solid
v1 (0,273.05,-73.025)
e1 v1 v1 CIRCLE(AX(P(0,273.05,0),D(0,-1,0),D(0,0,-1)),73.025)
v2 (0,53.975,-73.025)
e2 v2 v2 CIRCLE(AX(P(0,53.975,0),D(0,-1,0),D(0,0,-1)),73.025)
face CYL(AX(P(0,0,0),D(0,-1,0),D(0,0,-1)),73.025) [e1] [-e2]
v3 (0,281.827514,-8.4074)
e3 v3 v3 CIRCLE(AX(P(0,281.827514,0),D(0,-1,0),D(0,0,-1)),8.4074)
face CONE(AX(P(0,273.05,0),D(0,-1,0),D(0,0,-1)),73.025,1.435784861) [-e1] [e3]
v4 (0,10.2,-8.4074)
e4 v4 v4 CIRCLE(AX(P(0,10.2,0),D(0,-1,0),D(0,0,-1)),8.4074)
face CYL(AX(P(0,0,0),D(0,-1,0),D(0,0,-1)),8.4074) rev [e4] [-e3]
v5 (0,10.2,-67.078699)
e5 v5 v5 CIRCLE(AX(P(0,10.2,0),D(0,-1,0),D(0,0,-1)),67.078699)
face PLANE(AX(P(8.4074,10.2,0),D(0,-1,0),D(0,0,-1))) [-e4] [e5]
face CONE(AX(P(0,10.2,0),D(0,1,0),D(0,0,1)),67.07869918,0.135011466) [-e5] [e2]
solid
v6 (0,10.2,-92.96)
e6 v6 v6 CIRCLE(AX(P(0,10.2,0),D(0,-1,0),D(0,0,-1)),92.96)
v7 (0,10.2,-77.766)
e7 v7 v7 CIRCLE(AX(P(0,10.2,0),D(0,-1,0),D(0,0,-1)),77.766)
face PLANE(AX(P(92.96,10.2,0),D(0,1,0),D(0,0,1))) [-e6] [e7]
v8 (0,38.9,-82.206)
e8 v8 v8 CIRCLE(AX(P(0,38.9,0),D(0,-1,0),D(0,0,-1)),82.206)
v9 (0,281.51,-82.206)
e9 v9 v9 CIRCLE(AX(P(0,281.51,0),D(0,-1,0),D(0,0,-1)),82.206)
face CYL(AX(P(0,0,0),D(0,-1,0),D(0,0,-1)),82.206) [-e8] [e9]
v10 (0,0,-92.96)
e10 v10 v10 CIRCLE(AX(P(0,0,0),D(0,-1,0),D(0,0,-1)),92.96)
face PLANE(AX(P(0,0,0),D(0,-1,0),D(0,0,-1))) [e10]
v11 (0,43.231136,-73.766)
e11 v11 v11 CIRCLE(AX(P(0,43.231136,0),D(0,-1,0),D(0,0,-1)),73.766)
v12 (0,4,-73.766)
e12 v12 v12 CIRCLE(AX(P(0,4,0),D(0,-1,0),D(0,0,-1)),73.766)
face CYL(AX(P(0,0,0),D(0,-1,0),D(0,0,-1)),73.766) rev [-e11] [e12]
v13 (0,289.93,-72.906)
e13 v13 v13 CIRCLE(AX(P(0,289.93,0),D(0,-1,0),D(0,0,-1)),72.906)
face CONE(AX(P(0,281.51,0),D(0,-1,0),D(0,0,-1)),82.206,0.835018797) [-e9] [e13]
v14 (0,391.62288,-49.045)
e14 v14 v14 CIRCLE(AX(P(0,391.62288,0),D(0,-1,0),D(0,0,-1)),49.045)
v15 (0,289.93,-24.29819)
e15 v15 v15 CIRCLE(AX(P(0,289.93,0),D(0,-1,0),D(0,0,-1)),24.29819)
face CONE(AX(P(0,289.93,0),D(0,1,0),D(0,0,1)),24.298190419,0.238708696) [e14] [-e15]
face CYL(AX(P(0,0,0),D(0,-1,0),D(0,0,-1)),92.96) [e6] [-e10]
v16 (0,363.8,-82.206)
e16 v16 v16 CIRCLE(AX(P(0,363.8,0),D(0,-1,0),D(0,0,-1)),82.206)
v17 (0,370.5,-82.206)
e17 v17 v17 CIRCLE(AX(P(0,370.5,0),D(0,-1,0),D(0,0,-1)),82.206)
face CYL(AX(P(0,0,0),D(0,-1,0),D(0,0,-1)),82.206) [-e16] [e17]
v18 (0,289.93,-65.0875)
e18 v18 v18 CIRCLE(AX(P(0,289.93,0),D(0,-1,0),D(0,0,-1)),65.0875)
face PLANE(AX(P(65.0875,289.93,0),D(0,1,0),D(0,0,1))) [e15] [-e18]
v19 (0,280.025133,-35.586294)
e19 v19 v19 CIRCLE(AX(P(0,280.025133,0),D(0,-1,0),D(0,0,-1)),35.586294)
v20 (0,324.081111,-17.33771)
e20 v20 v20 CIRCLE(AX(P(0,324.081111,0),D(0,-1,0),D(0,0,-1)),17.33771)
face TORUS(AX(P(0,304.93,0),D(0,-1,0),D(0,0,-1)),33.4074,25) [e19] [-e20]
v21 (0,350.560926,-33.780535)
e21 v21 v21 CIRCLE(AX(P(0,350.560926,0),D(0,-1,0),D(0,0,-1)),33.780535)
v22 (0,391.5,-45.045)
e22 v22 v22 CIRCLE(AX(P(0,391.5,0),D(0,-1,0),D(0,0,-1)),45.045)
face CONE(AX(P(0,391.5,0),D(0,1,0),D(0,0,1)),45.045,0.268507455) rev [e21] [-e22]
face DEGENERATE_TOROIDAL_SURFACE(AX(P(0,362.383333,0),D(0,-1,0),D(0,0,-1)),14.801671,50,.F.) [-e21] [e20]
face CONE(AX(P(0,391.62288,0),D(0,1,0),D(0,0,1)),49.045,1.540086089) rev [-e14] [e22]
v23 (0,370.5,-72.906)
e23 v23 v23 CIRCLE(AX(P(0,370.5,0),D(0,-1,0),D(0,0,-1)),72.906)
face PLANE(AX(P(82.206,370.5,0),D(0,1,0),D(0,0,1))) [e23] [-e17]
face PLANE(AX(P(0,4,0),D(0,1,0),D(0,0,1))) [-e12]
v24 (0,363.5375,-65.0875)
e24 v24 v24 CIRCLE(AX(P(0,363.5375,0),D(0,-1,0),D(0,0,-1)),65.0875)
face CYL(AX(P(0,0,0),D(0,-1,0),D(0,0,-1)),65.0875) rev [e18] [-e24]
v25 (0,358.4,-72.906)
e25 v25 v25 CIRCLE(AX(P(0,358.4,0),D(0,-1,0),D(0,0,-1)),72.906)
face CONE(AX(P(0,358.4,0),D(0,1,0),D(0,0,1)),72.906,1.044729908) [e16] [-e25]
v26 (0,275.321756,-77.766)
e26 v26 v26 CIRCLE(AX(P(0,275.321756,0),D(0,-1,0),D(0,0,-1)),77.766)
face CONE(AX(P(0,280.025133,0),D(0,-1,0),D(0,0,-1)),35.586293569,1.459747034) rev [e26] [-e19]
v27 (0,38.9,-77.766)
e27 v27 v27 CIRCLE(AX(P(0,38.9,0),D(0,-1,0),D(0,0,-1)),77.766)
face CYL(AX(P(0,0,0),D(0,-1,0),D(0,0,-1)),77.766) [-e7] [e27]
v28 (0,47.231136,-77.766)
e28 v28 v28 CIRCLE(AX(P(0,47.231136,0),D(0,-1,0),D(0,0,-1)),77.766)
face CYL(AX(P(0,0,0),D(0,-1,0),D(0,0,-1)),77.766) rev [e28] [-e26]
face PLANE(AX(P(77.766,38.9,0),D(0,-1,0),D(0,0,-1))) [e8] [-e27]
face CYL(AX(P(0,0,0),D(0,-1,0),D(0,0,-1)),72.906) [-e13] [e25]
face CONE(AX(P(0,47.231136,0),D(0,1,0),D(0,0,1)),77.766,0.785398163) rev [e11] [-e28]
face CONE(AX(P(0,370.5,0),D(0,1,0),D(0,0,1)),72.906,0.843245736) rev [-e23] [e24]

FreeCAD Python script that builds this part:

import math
import FreeCAD as App
import Part
import Sketcher
from FreeCAD import Vector
Q = App.Units.Quantity


def add_polygon(sketch, points):
    """Adds a closed chain of lines whose ends are joined by coincident constraints."""
    first, n = sketch.GeometryCount, len(points)
    for a, b in zip(points, points[1:] + points[:1]):
        sketch.addGeometry(Part.LineSegment(App.Vector(*a, 0), App.Vector(*b, 0)), False)
    for i in range(n):
        sketch.addConstraint(Sketcher.Constraint("Coincident", first + i, 2, first + (i + 1) % n, 1))

doc = App.newDocument("Part")
body = doc.addObject("PartDesign::Body", "Body")
body.AllowCompound = True

# Sketch on XY plane
sketch1 = body.newObject("Sketcher::SketchObject", "Sketch")
sketch1.AttachmentSupport = (doc.getObject("XY_Plane"), [""])
sketch1.MapMode = "FlatFace"
sketch1.addGeometry(Part.LineSegment(Vector(0, 0, 0), Vector(93, 0, 0)), False)  # 0
sketch1.addGeometry(Part.LineSegment(Vector(93, 0, 0), Vector(93, 10.2, 0)), False)  # 1
sketch1.addGeometry(Part.LineSegment(Vector(93, 10.2, 0), Vector(77.8, 10.2, 0)), False)  # 2
sketch1.addGeometry(Part.LineSegment(Vector(77.8, 10.2, 0), Vector(77.8, 38.9, 0)), False)  # 3
sketch1.addGeometry(Part.LineSegment(Vector(77.8, 38.9, 0), Vector(82.2, 38.9, 0)), False)  # 4
sketch1.addGeometry(Part.LineSegment(Vector(82.2, 38.9, 0), Vector(82.2, 281.5, 0)), False)  # 5
sketch1.addGeometry(Part.LineSegment(Vector(82.2, 281.5, 0), Vector(72.9, 289.9, 0)), False)  # 6
sketch1.addGeometry(Part.LineSegment(Vector(72.9, 289.9, 0), Vector(72.9, 358.4, 0)), False)  # 7
sketch1.addGeometry(Part.LineSegment(Vector(72.9, 358.4, 0), Vector(82.2, 363.8, 0)), False)  # 8
sketch1.addGeometry(Part.LineSegment(Vector(82.2, 363.8, 0), Vector(82.2, 370.5, 0)), False)  # 9
sketch1.addGeometry(Part.LineSegment(Vector(82.2, 370.5, 0), Vector(72.9, 370.5, 0)), False)  # 10
sketch1.addGeometry(Part.LineSegment(Vector(72.9, 370.5, 0), Vector(65.1, 363.5, 0)), False)  # 11
sketch1.addGeometry(Part.LineSegment(Vector(65.1, 363.5, 0), Vector(65.1, 289.9, 0)), False)  # 12
sketch1.addGeometry(Part.LineSegment(Vector(65.1, 289.9, 0), Vector(24.3, 289.9, 0)), False)  # 13
sketch1.addGeometry(Part.LineSegment(Vector(24.3, 289.9, 0), Vector(49, 391.6, 0)), False)  # 14
sketch1.addGeometry(Part.LineSegment(Vector(49, 391.6, 0), Vector(45, 391.5, 0)), False)  # 15
sketch1.addGeometry(Part.LineSegment(Vector(45, 391.5, 0), Vector(33.8, 350.6, 0)), False)  # 16
sketch1.addGeometry(Part.ArcOfCircle(Part.Circle(Vector(-14.8, 362.4, 0), Vector(0, 0, 1), 50), math.radians(-50), math.radians(-14)), False)  # 17
sketch1.addGeometry(Part.ArcOfCircle(Part.Circle(Vector(33.4, 304.9, 0), Vector(0, 0, 1), 25), math.radians(130), math.radians(275)), False)  # 18
sketch1.addGeometry(Part.LineSegment(Vector(35.6, 280, 0), Vector(77.8, 275.3, 0)), False)  # 19
sketch1.addGeometry(Part.LineSegment(Vector(77.8, 275.3, 0), Vector(77.8, 47.2, 0)), False)  # 20
sketch1.addGeometry(Part.LineSegment(Vector(77.8, 47.2, 0), Vector(73.8, 43.2, 0)), False)  # 21
sketch1.addGeometry(Part.LineSegment(Vector(73.8, 43.2, 0), Vector(73.8, 4, 0)), False)  # 22
sketch1.addGeometry(Part.LineSegment(Vector(73.8, 4, 0), Vector(0, 4, 0)), False)  # 23
sketch1.addGeometry(Part.LineSegment(Vector(0, 4, 0), Vector(0, 0, 0)), False)  # 24
add_polygon(sketch1, [(8.4, 10.2), (67.1, 10.2), (73, 54), (73, 273.1), (8.4, 281.8)])  # lines 25-29
sketch1.addConstraint([
    Sketcher.Constraint("Coincident", 0, 2, 1, 1),
    Sketcher.Constraint("Coincident", 1, 2, 2, 1),
    Sketcher.Constraint("Coincident", 2, 2, 3, 1),
    Sketcher.Constraint("Coincident", 3, 2, 4, 1),
    Sketcher.Constraint("Coincident", 4, 2, 5, 1),
    Sketcher.Constraint("Coincident", 5, 2, 6, 1),
    Sketcher.Constraint("Coincident", 6, 2, 7, 1),
    Sketcher.Constraint("Coincident", 7, 2, 8, 1),
    Sketcher.Constraint("Coincident", 8, 2, 9, 1),
    Sketcher.Constraint("Coincident", 9, 2, 10, 1),
    Sketcher.Constraint("Coincident", 10, 2, 11, 1),
    Sketcher.Constraint("Coincident", 11, 2, 12, 1),
    Sketcher.Constraint("Coincident", 12, 2, 13, 1),
    Sketcher.Constraint("Coincident", 13, 2, 14, 1),
    Sketcher.Constraint("Coincident", 14, 2, 15, 1),
    Sketcher.Constraint("Coincident", 15, 2, 16, 1),
    Sketcher.Constraint("Coincident", 16, 2, 17, 2),
    Sketcher.Constraint("Tangent", 17, 1, 18, 1),
    Sketcher.Constraint("Coincident", 18, 2, 19, 1),
    Sketcher.Constraint("Coincident", 19, 2, 20, 1),
    Sketcher.Constraint("Coincident", 20, 2, 21, 1),
    Sketcher.Constraint("Coincident", 21, 2, 22, 1),
    Sketcher.Constraint("Coincident", 22, 2, 23, 1),
    Sketcher.Constraint("Coincident", 23, 2, 24, 1),
    Sketcher.Constraint("Coincident", 24, 2, 0, 1),
    Sketcher.Constraint("Horizontal", 0),
    Sketcher.Constraint("Vertical", 1),
    Sketcher.Constraint("Horizontal", 2),
    Sketcher.Constraint("Vertical", 3),
    Sketcher.Constraint("Horizontal", 4),
    Sketcher.Constraint("Vertical", 5),
    Sketcher.Constraint("Vertical", 7),
    Sketcher.Constraint("Vertical", 9),
    Sketcher.Constraint("Horizontal", 10),
    Sketcher.Constraint("Vertical", 12),
    Sketcher.Constraint("Horizontal", 13),
    Sketcher.Constraint("Vertical", 20),
    Sketcher.Constraint("Vertical", 22),
    Sketcher.Constraint("Horizontal", 23),
    Sketcher.Constraint("Vertical", 24),
    Sketcher.Constraint("Horizontal", 25),
    Sketcher.Constraint("Vertical", 27),
    Sketcher.Constraint("Vertical", 29),
    Sketcher.Constraint("Coincident", 24, 2, -1, 1),
    Sketcher.Constraint("Perpendicular", 26, 28),
    Sketcher.Constraint("Horizontal", 6, 2, 12, 2),
    Sketcher.Constraint("Horizontal", 2, 2, 25, 2),
    Sketcher.Constraint("Vertical", 5, 2, 8, 2),
    Sketcher.Constraint("Vertical", 7, 2, 10, 2),
    Sketcher.Constraint("Vertical", 3, 2, 19, 2),
    Sketcher.Constraint("Radius", 17, Q("50 mm")),
    Sketcher.Constraint("Radius", 18, Q("25 mm")),
    Sketcher.Constraint("DistanceY", 24, 2, 24, 1, Q("4 mm")),
    Sketcher.Constraint("Angle", 21, Q("-135 deg")),
    Sketcher.Constraint("DistanceX", 10, 2, 10, 1, Q("9.3 mm")),
    Sketcher.Constraint("DistanceY", 1, 1, 1, 2, Q("10.2 mm")),
    Sketcher.Constraint("DistanceY", 3, 1, 3, 2, Q("28.7 mm")),
    Sketcher.Constraint("DistanceY", 9, 1, 9, 2, Q("6.7 mm")),
    Sketcher.Constraint("DistanceY", 6, 2, 18, 3, Q("15 mm")),
    Sketcher.Constraint("DistanceX", 15, 2, 14, 2, Q("4 mm")),
    Sketcher.Constraint("DistanceY", 10, 2, 15, 2, Q("21 mm")),
    Sketcher.Constraint("DistanceX", 21, 2, 20, 2, Q("4 mm")),
    Sketcher.Constraint("DistanceX", 28, 2, 18, 3, Q("25 mm")),
    Sketcher.Constraint("DistanceX", 0, 1, 0, 2, Q("92.96 mm")),
    Sketcher.Constraint("DistanceX", 4, 1, 4, 2, Q("4.44 mm")),
    Sketcher.Constraint("DistanceY", 5, 1, 5, 2, Q("242.61 mm")),
    Sketcher.Constraint("DistanceY", 7, 1, 7, 2, Q("68.47 mm")),
    Sketcher.Constraint("DistanceY", -1, 1, 7, 2, Q("358.4 mm")),
    Sketcher.Constraint("DistanceY", -1, 1, 8, 2, Q("363.8 mm")),
    Sketcher.Constraint("DistanceX", 2, 2, 2, 1, Q("15.194 mm")),
    Sketcher.Constraint("DistanceY", 27, 1, 27, 2, Q("219.075 mm")),
    Sketcher.Constraint("DistanceY", -1, 1, 27, 2, Q("273.05 mm")),
    Sketcher.Constraint("DistanceX", 25, 1, 25, 2, Q("58.671299 mm")),
    Sketcher.Constraint("DistanceY", 12, 2, 12, 1, Q("73.6075 mm")),
    Sketcher.Constraint("DistanceX", -1, 1, 14, 2, Q("49.045 mm")),
    Sketcher.Constraint("DistanceX", -1, 1, 26, 2, Q("73.025 mm")),
    Sketcher.Constraint("DistanceX", 13, 2, 13, 1, Q("40.78931 mm")),
    Sketcher.Constraint("DistanceY", 20, 2, 20, 1, Q("228.09062 mm")),
    Sketcher.Constraint("DistanceX", -1, 1, 18, 3, Q("33.4074 mm")),
    Sketcher.Constraint("DistanceX", -1, 1, 11, 2, Q("65.0875 mm")),
    Sketcher.Constraint("Distance", 16, Q("42.460522 mm")),
    Sketcher.Constraint("Distance", 19, Q("42.441128 mm")),
    Sketcher.Constraint("DistanceY", 22, 2, 22, 1, Q("39.231136 mm")),
    Sketcher.Constraint("DistanceX", 17, 3, -1, 1, Q("14.801671 mm")),
    Sketcher.Constraint("DistanceY", -1, 1, 14, 2, Q("391.62288 mm")),
])
revolution = body.newObject("PartDesign::Revolution", "Revolution")
revolution.Profile = sketch1
revolution.ReferenceAxis = (sketch1, ["V_Axis"])
revolution.Angle = 360

doc.recompute()
